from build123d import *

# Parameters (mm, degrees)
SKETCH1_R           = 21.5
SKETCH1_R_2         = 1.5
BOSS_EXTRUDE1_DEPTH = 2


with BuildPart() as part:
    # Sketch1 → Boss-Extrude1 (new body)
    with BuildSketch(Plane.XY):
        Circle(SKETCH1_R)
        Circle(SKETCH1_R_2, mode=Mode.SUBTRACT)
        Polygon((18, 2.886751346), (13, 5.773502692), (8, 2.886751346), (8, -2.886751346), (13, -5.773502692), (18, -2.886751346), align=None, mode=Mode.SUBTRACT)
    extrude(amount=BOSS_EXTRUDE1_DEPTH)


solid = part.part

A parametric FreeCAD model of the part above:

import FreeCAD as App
import Part
import Sketcher
Q = App.Units.Quantity

doc = App.newDocument("Part")
body = doc.addObject("PartDesign::Body", "Body")

# Sketch on XY plane
sketch1 = body.newObject("Sketcher::SketchObject", "Sketch")
sketch1.AttachmentSupport = (doc.getObject("XY_Plane"), [""])
sketch1.MapMode = "FlatFace"
sketch1.addGeometry([
    Part.Circle(App.Vector(0, 0, 0), App.Vector(0, 0, 1), 21.5),  # 0
    Part.Circle(App.Vector(0, 0, 0), App.Vector(0, 0, 1), 1.5),  # 1
    Part.LineSegment(App.Vector(13, 5.8, 0), App.Vector(18, 2.9, 0)),  # 2
    Part.LineSegment(App.Vector(18, 2.9, 0), App.Vector(18, -2.9, 0)),  # 3
    Part.LineSegment(App.Vector(18, -2.9, 0), App.Vector(13, -5.8, 0)),  # 4
    Part.LineSegment(App.Vector(13, -5.8, 0), App.Vector(8, -2.9, 0)),  # 5
    Part.LineSegment(App.Vector(8, -2.9, 0), App.Vector(8, 2.9, 0)),  # 6
    Part.LineSegment(App.Vector(8, 2.9, 0), App.Vector(13, 5.8, 0)),  # 7
], False)
sketch1.addConstraint([
    Sketcher.Constraint("Coincident", 2, 2, 3, 1),
    Sketcher.Constraint("Coincident", 3, 2, 4, 1),
    Sketcher.Constraint("Coincident", 4, 2, 5, 1),
    Sketcher.Constraint("Coincident", 5, 2, 6, 1),
    Sketcher.Constraint("Coincident", 6, 2, 7, 1),
    Sketcher.Constraint("Coincident", 7, 2, 2, 1),
    Sketcher.Constraint("Vertical", 3),
    Sketcher.Constraint("Vertical", 6),
    Sketcher.Constraint("Coincident", 0, 3, -1, 1),
    Sketcher.Constraint("Coincident", 1, 3, -1, 1),
    Sketcher.Constraint("Symmetric", 4, 2, 7, 2, -1),
    Sketcher.Constraint("Parallel", 2, 5),
    Sketcher.Constraint("Parallel", 4, 7),
    Sketcher.Constraint("Horizontal", 3, 2, 5, 2),
    Sketcher.Constraint("Horizontal", 2, 2, 6, 2),
    Sketcher.Constraint("Diameter", 0, Q("43 mm")),
    Sketcher.Constraint("Diameter", 1, Q("3 mm")),
    Sketcher.Constraint("Angle", 2, Q("-30 deg")),
    Sketcher.Constraint("DistanceX", -1, 1, 2, 2, Q("18 mm")),
    Sketcher.Constraint("DistanceX", -1, 1, 4, 2, Q("13 mm")),
    Sketcher.Constraint("DistanceY", 3, 2, 3, 1, Q("5.773503 mm")),
])
pad1 = body.newObject("PartDesign::Pad", "Pad")
pad1.Profile = sketch1
pad1.Length = 2

doc.recompute()
